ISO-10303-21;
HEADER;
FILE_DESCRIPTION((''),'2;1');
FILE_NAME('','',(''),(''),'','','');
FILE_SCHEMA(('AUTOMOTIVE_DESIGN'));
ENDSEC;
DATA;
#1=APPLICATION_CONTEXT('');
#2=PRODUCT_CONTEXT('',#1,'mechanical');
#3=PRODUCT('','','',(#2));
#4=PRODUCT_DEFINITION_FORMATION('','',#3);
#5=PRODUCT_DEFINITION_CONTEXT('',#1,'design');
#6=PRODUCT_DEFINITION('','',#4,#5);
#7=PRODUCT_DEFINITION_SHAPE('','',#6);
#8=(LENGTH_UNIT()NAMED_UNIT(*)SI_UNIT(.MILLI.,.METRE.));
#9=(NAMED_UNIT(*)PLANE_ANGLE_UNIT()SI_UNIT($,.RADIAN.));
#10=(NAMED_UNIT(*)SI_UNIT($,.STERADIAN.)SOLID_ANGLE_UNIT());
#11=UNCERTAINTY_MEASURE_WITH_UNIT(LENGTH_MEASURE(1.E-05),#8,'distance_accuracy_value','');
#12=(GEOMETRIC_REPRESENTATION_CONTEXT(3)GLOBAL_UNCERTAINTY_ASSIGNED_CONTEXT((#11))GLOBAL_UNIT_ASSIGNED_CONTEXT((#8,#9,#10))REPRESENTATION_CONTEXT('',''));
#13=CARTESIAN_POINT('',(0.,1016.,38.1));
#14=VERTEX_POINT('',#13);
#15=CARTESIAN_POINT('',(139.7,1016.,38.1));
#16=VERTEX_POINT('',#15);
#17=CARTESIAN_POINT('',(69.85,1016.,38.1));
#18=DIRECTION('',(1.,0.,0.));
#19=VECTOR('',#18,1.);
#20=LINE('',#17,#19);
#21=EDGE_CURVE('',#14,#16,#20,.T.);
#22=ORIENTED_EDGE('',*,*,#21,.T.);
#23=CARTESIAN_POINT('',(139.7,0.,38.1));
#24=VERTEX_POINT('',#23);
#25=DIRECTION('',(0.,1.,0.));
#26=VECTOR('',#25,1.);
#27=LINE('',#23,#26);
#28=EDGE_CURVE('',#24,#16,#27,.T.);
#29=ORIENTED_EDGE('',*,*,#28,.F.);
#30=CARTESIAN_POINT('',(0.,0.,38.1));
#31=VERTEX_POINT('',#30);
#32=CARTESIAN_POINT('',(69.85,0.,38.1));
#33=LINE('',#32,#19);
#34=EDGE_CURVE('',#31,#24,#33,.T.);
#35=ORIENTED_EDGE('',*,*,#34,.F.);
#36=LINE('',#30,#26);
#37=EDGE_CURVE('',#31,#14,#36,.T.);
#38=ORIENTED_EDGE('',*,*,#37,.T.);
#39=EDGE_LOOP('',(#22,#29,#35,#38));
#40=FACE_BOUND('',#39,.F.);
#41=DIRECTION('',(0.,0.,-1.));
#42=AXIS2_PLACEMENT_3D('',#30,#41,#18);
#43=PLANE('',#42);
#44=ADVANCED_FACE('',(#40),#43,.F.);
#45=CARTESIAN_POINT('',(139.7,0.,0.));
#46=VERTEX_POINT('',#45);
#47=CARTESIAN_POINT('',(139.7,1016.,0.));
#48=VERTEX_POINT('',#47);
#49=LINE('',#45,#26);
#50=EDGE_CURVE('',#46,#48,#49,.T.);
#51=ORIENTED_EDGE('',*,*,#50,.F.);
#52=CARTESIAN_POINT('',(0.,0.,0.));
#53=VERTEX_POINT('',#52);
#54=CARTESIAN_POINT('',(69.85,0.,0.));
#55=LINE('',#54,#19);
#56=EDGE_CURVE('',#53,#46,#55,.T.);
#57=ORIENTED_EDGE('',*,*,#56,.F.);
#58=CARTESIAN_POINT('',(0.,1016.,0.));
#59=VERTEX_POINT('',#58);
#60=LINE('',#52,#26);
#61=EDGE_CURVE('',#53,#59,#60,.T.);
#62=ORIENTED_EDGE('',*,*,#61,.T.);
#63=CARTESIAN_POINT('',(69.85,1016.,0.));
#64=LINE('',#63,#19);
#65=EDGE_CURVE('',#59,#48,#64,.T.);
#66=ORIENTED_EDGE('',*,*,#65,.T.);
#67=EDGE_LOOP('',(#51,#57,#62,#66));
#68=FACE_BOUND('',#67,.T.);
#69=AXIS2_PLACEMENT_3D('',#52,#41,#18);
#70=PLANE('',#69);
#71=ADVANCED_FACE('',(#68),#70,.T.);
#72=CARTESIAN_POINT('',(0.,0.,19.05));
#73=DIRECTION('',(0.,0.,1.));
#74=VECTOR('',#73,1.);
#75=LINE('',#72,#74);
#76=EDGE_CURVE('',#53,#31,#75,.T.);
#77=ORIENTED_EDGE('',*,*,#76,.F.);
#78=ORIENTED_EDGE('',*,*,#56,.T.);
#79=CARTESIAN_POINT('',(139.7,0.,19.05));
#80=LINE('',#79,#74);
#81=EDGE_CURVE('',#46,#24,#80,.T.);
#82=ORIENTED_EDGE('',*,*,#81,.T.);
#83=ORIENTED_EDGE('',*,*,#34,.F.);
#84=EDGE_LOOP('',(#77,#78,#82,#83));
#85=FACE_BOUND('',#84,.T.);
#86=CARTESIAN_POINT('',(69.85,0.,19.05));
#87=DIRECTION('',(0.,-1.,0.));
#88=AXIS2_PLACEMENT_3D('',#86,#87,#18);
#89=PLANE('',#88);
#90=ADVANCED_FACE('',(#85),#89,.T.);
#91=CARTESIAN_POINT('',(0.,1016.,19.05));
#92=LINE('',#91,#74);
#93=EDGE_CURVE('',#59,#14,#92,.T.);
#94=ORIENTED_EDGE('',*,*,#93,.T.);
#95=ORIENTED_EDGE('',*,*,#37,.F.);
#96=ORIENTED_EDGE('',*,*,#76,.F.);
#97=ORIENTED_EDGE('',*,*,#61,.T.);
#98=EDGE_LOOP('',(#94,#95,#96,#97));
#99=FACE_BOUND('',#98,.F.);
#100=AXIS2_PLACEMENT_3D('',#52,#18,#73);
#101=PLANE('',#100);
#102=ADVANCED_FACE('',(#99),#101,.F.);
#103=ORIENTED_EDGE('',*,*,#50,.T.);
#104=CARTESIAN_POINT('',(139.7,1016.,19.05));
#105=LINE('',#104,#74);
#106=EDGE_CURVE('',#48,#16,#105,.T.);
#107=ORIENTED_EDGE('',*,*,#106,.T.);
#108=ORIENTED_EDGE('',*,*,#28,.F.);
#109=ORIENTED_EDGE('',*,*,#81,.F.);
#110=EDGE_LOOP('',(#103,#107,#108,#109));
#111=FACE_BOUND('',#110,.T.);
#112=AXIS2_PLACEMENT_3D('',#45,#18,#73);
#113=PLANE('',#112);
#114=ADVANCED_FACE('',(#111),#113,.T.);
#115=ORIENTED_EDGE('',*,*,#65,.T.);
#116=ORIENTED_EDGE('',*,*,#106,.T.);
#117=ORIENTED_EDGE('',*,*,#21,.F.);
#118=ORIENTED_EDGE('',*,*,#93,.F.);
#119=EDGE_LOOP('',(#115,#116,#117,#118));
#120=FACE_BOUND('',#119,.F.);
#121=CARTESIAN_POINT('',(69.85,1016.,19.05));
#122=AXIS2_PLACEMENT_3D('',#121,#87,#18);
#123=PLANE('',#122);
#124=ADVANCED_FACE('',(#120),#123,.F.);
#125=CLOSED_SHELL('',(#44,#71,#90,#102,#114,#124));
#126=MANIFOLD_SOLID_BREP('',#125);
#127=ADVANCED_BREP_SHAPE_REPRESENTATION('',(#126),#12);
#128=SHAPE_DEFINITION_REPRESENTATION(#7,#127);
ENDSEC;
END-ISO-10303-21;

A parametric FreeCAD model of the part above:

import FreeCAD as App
import Part
import Sketcher

V = App.Vector
Q = App.Units.Quantity

doc = App.newDocument("Part")
params = doc.addObject("Spreadsheet::Sheet", "Params")
for row, (alias, value) in enumerate([
    ("sketch1_width", "5.5 in"),
    ("sketch1_height", "1.5 in"),
    ("pad1_length", "40 in"),
], start=1):
    params.set(f"A{row}", alias)
    params.set(f"B{row}", "=" + value)
    params.setAlias(f"B{row}", alias)

body = doc.addObject("PartDesign::Body", "Body")

# Sketch on XZ plane
sketch1 = body.newObject("Sketcher::SketchObject", "Sketch")
sketch1.AttachmentSupport = (doc.getObject("XZ_Plane"), [""])
sketch1.MapMode = "FlatFace"
sketch1.addGeometry([
    Part.LineSegment(V(0, 38, 0), V(0, 0, 0)),
    Part.LineSegment(V(0, 0, 0), V(140, 0, 0)),
    Part.LineSegment(V(140, 0, 0), V(140, 38, 0)),
    Part.LineSegment(V(140, 38, 0), V(0, 38, 0)),
], False)
sketch1.addConstraint([
    Sketcher.Constraint("Coincident", 0, 2, 1, 1),
    Sketcher.Constraint("Coincident", 1, 2, 2, 1),
    Sketcher.Constraint("Coincident", 2, 2, 3, 1),
    Sketcher.Constraint("Coincident", 3, 2, 0, 1),
    Sketcher.Constraint("Vertical", 0),
    Sketcher.Constraint("Horizontal", 1),
    Sketcher.Constraint("Vertical", 2),
    Sketcher.Constraint("Horizontal", 3),
    Sketcher.Constraint("Coincident", 0, 2, -1, 1),
    Sketcher.Constraint("DistanceX", 1, 1, 1, 2, Q("5.5 in")),
    Sketcher.Constraint("DistanceY", 0, 2, 0, 1, Q("1.5 in")),
])
sketch1.setExpression("Constraints[9]", "Params.sketch1_width")
sketch1.setExpression("Constraints[10]", "Params.sketch1_height")
pad1 = body.newObject("PartDesign::Pad", "Pad")
pad1.Profile = sketch1
pad1.setExpression("Length", "Params.pad1_length")
pad1.Reversed = True

doc.recompute()
